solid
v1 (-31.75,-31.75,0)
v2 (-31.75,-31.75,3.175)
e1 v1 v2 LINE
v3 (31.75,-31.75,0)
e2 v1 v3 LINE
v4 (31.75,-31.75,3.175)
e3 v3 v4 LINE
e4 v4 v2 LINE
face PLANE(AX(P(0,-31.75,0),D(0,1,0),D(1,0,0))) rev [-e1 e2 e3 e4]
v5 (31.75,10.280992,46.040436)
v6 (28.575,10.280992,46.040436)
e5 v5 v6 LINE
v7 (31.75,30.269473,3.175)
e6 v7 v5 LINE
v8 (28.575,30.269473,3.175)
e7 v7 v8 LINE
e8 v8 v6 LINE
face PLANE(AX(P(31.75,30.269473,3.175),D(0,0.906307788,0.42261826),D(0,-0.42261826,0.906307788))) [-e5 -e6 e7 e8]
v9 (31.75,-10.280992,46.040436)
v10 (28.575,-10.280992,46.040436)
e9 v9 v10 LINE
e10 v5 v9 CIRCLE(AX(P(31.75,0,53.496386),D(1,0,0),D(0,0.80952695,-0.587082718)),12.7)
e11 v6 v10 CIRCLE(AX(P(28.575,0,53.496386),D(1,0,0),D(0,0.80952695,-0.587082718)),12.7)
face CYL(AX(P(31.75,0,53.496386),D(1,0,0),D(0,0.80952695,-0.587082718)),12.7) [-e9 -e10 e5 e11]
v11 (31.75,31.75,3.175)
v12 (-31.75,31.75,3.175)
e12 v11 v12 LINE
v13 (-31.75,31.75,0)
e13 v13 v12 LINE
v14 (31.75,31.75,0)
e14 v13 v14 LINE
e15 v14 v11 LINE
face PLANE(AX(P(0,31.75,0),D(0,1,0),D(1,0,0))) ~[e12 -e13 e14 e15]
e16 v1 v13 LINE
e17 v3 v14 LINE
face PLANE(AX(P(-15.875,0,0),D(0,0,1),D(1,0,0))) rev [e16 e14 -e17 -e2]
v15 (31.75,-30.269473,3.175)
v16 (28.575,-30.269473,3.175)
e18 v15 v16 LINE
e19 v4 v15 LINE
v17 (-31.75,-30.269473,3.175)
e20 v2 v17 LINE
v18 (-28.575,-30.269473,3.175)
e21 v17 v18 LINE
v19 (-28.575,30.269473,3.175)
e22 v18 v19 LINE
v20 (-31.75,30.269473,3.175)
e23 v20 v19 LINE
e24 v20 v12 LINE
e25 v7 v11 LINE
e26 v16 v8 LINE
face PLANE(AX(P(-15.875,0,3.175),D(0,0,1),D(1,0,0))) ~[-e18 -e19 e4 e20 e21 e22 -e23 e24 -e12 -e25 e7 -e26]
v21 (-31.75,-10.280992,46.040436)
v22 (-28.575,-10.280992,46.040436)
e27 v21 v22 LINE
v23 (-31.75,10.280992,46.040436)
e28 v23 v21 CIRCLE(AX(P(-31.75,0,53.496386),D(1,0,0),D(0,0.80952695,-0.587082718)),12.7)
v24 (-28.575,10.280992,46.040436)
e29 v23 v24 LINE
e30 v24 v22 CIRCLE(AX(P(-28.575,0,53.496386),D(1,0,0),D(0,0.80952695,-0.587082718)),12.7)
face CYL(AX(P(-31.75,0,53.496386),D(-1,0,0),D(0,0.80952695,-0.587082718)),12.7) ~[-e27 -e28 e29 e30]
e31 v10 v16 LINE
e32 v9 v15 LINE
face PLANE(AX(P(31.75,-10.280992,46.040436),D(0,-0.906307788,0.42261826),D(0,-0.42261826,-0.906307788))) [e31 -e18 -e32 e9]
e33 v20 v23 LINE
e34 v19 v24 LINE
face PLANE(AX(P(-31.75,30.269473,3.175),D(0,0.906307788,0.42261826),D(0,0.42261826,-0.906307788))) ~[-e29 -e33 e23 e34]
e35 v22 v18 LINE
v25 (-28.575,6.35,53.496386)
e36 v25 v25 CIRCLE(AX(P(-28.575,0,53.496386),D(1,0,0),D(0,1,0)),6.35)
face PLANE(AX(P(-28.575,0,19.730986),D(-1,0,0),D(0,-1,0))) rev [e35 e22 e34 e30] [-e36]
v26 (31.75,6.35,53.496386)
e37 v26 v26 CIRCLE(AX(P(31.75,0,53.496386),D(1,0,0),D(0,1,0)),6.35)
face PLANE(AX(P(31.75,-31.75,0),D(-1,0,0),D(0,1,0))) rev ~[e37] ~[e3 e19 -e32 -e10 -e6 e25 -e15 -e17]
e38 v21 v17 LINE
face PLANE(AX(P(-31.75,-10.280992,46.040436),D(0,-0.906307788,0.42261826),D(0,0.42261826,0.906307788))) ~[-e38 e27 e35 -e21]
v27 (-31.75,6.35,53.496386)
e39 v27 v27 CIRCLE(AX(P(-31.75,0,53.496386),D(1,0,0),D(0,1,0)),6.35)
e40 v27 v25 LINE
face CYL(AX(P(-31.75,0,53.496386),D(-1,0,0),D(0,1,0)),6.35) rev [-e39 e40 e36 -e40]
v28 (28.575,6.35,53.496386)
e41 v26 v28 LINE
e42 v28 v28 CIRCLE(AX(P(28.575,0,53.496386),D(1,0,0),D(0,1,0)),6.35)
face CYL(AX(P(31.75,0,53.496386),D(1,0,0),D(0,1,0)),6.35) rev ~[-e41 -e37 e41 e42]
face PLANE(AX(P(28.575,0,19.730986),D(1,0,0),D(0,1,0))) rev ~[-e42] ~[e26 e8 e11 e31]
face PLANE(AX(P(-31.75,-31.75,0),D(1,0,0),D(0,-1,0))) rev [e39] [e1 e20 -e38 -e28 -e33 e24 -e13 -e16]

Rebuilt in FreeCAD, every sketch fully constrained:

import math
import FreeCAD as App
import Part
import Sketcher

V = App.Vector
Q = App.Units.Quantity

doc = App.newDocument("Part")
body = doc.addObject("PartDesign::Body", "Body")

sketch1 = body.newObject("Sketcher::SketchObject", "Sketch")
sketch1.AttachmentSupport = (doc.getObject("XY_Plane"), [""])
sketch1.MapMode = "FlatFace"
sketch1.addGeometry([
    Part.LineSegment(V(0, 32, 0), V(0, -32, 0)),
    Part.LineSegment(V(0, -32, 0), V(32, -32, 0)),
    Part.LineSegment(V(32, -32, 0), V(32, 32, 0)),
    Part.LineSegment(V(32, 32, 0), V(0, 32, 0)),
], False)
sketch1.addConstraint([
    Sketcher.Constraint("Coincident", 0, 2, 1, 1),
    Sketcher.Constraint("Coincident", 1, 2, 2, 1),
    Sketcher.Constraint("Coincident", 2, 2, 3, 1),
    Sketcher.Constraint("Coincident", 3, 2, 0, 1),
    Sketcher.Constraint("Vertical", 0),
    Sketcher.Constraint("Horizontal", 1),
    Sketcher.Constraint("Vertical", 2),
    Sketcher.Constraint("Horizontal", 3),
    Sketcher.Constraint("Symmetric", 0, 2, 3, 2, -1, 1),
    Sketcher.Constraint("DistanceY", 0, 2, 0, 1, Q("2.5 in")),
    Sketcher.Constraint("DistanceX", 1, 1, 1, 2, Q("1.25 in")),
])
pad1 = body.newObject("PartDesign::Pad", "Pad")
pad1.Profile = sketch1
pad1.Length = Q("0.125 in")

sketch2 = body.newObject("Sketcher::SketchObject", "Sketch001")
sketch2.AttachmentSupport = (doc.getObject("YZ_Plane"), [""])
sketch2.MapMode = "FlatFace"
sketch2.AttachmentOffset = App.Placement(V(0, 0, 1.25 * 25.4), App.Rotation())
sketch2.addGeometry([
    Part.LineSegment(V(-10, 46, 0), V(-30, 3, 0)),
    Part.LineSegment(V(-30, 3, 0), V(30, 3, 0)),
    Part.LineSegment(V(30, 3, 0), V(10, 46, 0)),
    Part.ArcOfCircle(Part.Circle(V(0, 53, 0), V(0, 0, 1), 13), math.radians(-36), math.radians(216)),
    Part.Circle(V(0, 53, 0), V(0, 0, 1), 6),
], False)
sketch2.addConstraint([
    Sketcher.Constraint("Coincident", 0, 2, 1, 1),
    Sketcher.Constraint("Coincident", 1, 2, 2, 1),
    Sketcher.Constraint("Coincident", 2, 2, 3, 1),
    Sketcher.Constraint("Coincident", 3, 2, 0, 1),
    Sketcher.Constraint("Horizontal", 1),
    Sketcher.Constraint("Coincident", 4, 3, 3, 3),
    Sketcher.Constraint("Symmetric", 2, 2, 3, 2, -2),
    Sketcher.Constraint("Equal", 0, 2),
    Sketcher.Constraint("Diameter", 4, Q("0.5 in")),
    Sketcher.Constraint("Radius", 3, Q("0.5 in")),
    Sketcher.Constraint("Angle", 0, Q("-115 deg")),
    Sketcher.Constraint("DistanceY", -1, 1, 0, 2, Q("0.125 in")),
    Sketcher.Constraint("DistanceX", 1, 1, 1, 2, 60.538946),
    Sketcher.Constraint("DistanceX", 3, 2, -1, 1, 10.280992),
])
pad2 = body.newObject("PartDesign::Pad", "Pad001")
pad2.Profile = sketch2
pad2.Length = Q("0.125 in")
pad2.Reversed = True
body2 = doc.addObject("PartDesign::Body", "Body001")
doc.recompute()

body2.BaseFeature = body
doc.recompute()

mirroring = doc.addObject("Part::Mirroring", "Mirroring")
mirroring.Source = body
mirroring.Base = V(0, 0, 0)
mirroring.Normal = V(1, 0, 0)
body3 = doc.addObject("PartDesign::Body", "Body002")
body3.BaseFeature = mirroring
boolean = body2.newObject("PartDesign::Boolean", "Boolean")
boolean.Type = "Fuse"
boolean.addObjects([body3])
doc.recompute()
mirroring.Visibility = False

doc.recompute()
